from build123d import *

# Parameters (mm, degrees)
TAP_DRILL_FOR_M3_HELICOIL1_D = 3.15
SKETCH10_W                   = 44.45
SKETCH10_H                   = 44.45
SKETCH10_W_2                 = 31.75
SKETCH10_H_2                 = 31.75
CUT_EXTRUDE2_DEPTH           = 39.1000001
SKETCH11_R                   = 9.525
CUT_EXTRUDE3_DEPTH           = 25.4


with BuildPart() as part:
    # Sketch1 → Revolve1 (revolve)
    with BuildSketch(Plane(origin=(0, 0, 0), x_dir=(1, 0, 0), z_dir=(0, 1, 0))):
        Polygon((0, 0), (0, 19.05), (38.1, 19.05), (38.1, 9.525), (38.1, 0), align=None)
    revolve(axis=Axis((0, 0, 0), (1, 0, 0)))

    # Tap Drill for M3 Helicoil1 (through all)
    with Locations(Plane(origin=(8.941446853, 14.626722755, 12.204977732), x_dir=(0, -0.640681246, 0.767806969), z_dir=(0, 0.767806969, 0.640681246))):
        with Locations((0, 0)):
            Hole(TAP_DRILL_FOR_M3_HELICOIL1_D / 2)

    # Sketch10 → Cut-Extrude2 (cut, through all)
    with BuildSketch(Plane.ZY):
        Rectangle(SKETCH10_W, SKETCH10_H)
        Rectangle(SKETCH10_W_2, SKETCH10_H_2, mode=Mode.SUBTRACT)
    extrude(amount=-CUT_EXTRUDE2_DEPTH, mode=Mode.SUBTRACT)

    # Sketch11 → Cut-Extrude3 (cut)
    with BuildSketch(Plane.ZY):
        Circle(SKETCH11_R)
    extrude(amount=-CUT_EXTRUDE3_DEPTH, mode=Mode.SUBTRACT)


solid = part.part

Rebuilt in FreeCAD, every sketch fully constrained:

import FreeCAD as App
import Part
import Sketcher

V = App.Vector
Q = App.Units.Quantity

doc = App.newDocument("Part")
params = doc.addObject("Spreadsheet::Sheet", "Params")
for row, (alias, value) in enumerate([
    ("sketch1_width", "1.5 in"),
    ("sketch1_height", "0.75 in"),
    ("revolution_angle", "360 deg"),
    ("hole_diameter", "3.15 mm"),
    ("sketch3_width", "1.75 in"),
    ("sketch3_width2", "1.25 in"),
    ("sketch4_diameter", "0.75 in"),
    ("pocket2_length", "1 in"),
], start=1):
    params.set(f"A{row}", alias)
    params.set(f"B{row}", "=" + value)
    params.setAlias(f"B{row}", alias)

body = doc.addObject("PartDesign::Body", "Body")

sketch1 = body.newObject("Sketcher::SketchObject", "Sketch")
sketch1.AttachmentSupport = (doc.getObject("XZ_Plane"), [""])
sketch1.MapMode = "FlatFace"
sketch1.addGeometry(Part.LineSegment(V(0, -19.05, 0), V(0, 0, 0)), False)
sketch1.addGeometry(Part.LineSegment(V(0, 0, 0), V(38.1, 0, 0)), False)
sketch1.addGeometry(Part.LineSegment(V(38.1, 0, 0), V(38.1, -19.05, 0)), False)
sketch1.addGeometry(Part.LineSegment(V(38.1, -19.05, 0), V(0, -19.05, 0)), False)
sketch1.addConstraint(Sketcher.Constraint("Coincident", 0, 2, 1, 1))
sketch1.addConstraint(Sketcher.Constraint("Coincident", 1, 2, 2, 1))
sketch1.addConstraint(Sketcher.Constraint("Coincident", 2, 2, 3, 1))
sketch1.addConstraint(Sketcher.Constraint("Coincident", 3, 2, 0, 1))
sketch1.addConstraint(Sketcher.Constraint("Vertical", 0))
sketch1.addConstraint(Sketcher.Constraint("Horizontal", 1))
sketch1.addConstraint(Sketcher.Constraint("Vertical", 2))
sketch1.addConstraint(Sketcher.Constraint("Horizontal", 3))
sketch1.addConstraint(Sketcher.Constraint("Coincident", 0, 2, -1, 1))
sketch1.addConstraint(Sketcher.Constraint("DistanceX", 1, 1, 1, 2, Q("1.5 in")))
sketch1.addConstraint(Sketcher.Constraint("DistanceY", 0, 1, 0, 2, Q("0.75 in")))
sketch1.setExpression("Constraints[9]", "Params.sketch1_width")
sketch1.setExpression("Constraints[10]", "Params.sketch1_height")
revolution = body.newObject("PartDesign::Revolution", "Revolution")
revolution.Profile = sketch1
revolution.ReferenceAxis = (sketch1, ["H_Axis"])
revolution.setExpression("Angle", "Params.revolution_angle")

sketch2 = body.newObject("Sketcher::SketchObject", "Sketch001")
sketch2.Placement = App.Placement(V(0, 14.626723, 12.204978), App.Rotation(V(0, -0.640681246, 0.767806969), V(1.000000001, 0, 0), V(0, 0.767806969, 0.640681246), "ZXY"))
sketch2.addGeometry(Part.Circle(V(0, 8.941447, 0), V(0, 0, 1), 1.575), False)
sketch2.addConstraint(Sketcher.Constraint("PointOnObject", 0, 3, -2))
sketch2.addConstraint(Sketcher.Constraint("Diameter", 0, Q("3.15 mm")))
sketch2.addConstraint(Sketcher.Constraint("DistanceY", -1, 1, 0, 3, Q("8.941447 mm")))
doc.recompute()
hole = body.newObject("PartDesign::Hole", "Hole")
hole.Profile = sketch2
hole.ThreadType = "None"
hole.setExpression("Diameter", "Params.hole_diameter")
hole.DepthType = "ThroughAll"

sketch3 = body.newObject("Sketcher::SketchObject", "Sketch002")
sketch3.AttachmentSupport = (doc.getObject("YZ_Plane"), [""])
sketch3.MapMode = "FlatFace"
sketch3.addGeometry(Part.LineSegment(V(22.225, -22.225, 0), V(-22.225, -22.225, 0)), False)
sketch3.addGeometry(Part.LineSegment(V(-22.225, -22.225, 0), V(-22.225, 22.225, 0)), False)
sketch3.addGeometry(Part.LineSegment(V(-22.225, 22.225, 0), V(22.225, 22.225, 0)), False)
sketch3.addGeometry(Part.LineSegment(V(22.225, 22.225, 0), V(22.225, -22.225, 0)), False)
sketch3.addGeometry(Part.LineSegment(V(-15.875, 15.875, 0), V(-15.875, -15.875, 0)), False)
sketch3.addGeometry(Part.LineSegment(V(-15.875, -15.875, 0), V(15.875, -15.875, 0)), False)
sketch3.addGeometry(Part.LineSegment(V(15.875, -15.875, 0), V(15.875, 15.875, 0)), False)
sketch3.addGeometry(Part.LineSegment(V(15.875, 15.875, 0), V(-15.875, 15.875, 0)), False)
sketch3.addConstraint(Sketcher.Constraint("Coincident", 0, 2, 1, 1))
sketch3.addConstraint(Sketcher.Constraint("Coincident", 1, 2, 2, 1))
sketch3.addConstraint(Sketcher.Constraint("Coincident", 2, 2, 3, 1))
sketch3.addConstraint(Sketcher.Constraint("Coincident", 3, 2, 0, 1))
sketch3.addConstraint(Sketcher.Constraint("Coincident", 4, 2, 5, 1))
sketch3.addConstraint(Sketcher.Constraint("Coincident", 5, 2, 6, 1))
sketch3.addConstraint(Sketcher.Constraint("Coincident", 6, 2, 7, 1))
sketch3.addConstraint(Sketcher.Constraint("Coincident", 7, 2, 4, 1))
sketch3.addConstraint(Sketcher.Constraint("Horizontal", 0))
sketch3.addConstraint(Sketcher.Constraint("Vertical", 1))
sketch3.addConstraint(Sketcher.Constraint("Horizontal", 2))
sketch3.addConstraint(Sketcher.Constraint("Vertical", 3))
sketch3.addConstraint(Sketcher.Constraint("Vertical", 4))
sketch3.addConstraint(Sketcher.Constraint("Horizontal", 5))
sketch3.addConstraint(Sketcher.Constraint("Vertical", 6))
sketch3.addConstraint(Sketcher.Constraint("Horizontal", 7))
sketch3.addConstraint(Sketcher.Constraint("Symmetric", 0, 2, 2, 2, -1, 1))
sketch3.addConstraint(Sketcher.Constraint("Symmetric", 4, 2, 6, 2, -1, 1))
sketch3.addConstraint(Sketcher.Constraint("Equal", 2, 1))
sketch3.addConstraint(Sketcher.Constraint("Equal", 7, 4))
sketch3.addConstraint(Sketcher.Constraint("DistanceX", 0, 2, 0, 1, Q("1.75 in")))
sketch3.addConstraint(Sketcher.Constraint("DistanceX", 5, 1, 5, 2, Q("1.25 in")))
sketch3.setExpression("Constraints[20]", "Params.sketch3_width")
sketch3.setExpression("Constraints[21]", "Params.sketch3_width2")
pocket1 = body.newObject("PartDesign::Pocket", "Pocket")
pocket1.Profile = sketch3
pocket1.Type = "ThroughAll"
pocket1.Reversed = True

sketch4 = body.newObject("Sketcher::SketchObject", "Sketch003")
sketch4.AttachmentSupport = (doc.getObject("YZ_Plane"), [""])
sketch4.MapMode = "FlatFace"
sketch4.addGeometry(Part.Circle(V(0, 0, 0), V(0, 0, 1), 9.525), False)
sketch4.addConstraint(Sketcher.Constraint("Coincident", 0, 3, -1, 1))
sketch4.addConstraint(Sketcher.Constraint("Diameter", 0, Q("0.75 in")))
sketch4.setExpression("Constraints[1]", "Params.sketch4_diameter")
pocket2 = body.newObject("PartDesign::Pocket", "Pocket001")
pocket2.Profile = sketch4
pocket2.setExpression("Length", "Params.pocket2_length")
pocket2.Reversed = True

doc.recompute()
